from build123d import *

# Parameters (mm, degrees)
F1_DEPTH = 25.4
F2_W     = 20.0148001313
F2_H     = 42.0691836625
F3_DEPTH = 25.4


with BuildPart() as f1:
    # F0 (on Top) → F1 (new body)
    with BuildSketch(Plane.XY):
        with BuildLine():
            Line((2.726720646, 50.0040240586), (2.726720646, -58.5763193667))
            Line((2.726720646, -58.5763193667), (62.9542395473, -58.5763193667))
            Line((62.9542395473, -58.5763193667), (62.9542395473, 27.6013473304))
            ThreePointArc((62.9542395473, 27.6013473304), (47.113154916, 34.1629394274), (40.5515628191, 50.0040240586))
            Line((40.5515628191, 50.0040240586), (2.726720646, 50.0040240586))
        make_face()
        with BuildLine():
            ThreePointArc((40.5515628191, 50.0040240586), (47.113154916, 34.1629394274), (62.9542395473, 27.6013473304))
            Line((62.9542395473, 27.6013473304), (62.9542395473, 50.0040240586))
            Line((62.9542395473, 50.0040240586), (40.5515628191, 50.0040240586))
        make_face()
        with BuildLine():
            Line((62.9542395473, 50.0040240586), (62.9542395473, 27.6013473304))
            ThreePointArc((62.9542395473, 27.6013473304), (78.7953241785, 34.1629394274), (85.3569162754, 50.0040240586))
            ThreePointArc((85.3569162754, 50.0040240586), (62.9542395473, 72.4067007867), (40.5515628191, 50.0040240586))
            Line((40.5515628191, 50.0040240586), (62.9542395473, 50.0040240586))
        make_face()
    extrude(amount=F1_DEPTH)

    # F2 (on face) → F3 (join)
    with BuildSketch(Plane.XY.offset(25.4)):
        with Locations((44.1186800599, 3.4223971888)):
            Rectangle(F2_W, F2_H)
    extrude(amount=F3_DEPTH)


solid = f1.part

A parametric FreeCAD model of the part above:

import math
import FreeCAD as App
import Part
import Sketcher

V = App.Vector
Q = App.Units.Quantity


def add_polygon(sketch, points):
    """Adds a closed chain of lines whose ends are joined by coincident constraints."""
    first, n = sketch.GeometryCount, len(points)
    for a, b in zip(points, points[1:] + points[:1]):
        sketch.addGeometry(Part.LineSegment(App.Vector(*a, 0), App.Vector(*b, 0)), False)
    for i in range(n):
        sketch.addConstraint(Sketcher.Constraint("Coincident", first + i, 2, first + (i + 1) % n, 1))

doc = App.newDocument("Part")
body = doc.addObject("PartDesign::Body", "Body")

# Sketch on XY plane
sketch1 = body.newObject("Sketcher::SketchObject", "Sketch")
sketch1.AttachmentSupport = (doc.getObject("XY_Plane"), [""])
sketch1.MapMode = "FlatFace"
sketch1.addGeometry([
    Part.LineSegment(V(3, 50, 0), V(3, -59, 0)),  # 0
    Part.LineSegment(V(3, -59, 0), V(63, -59, 0)),  # 1
    Part.LineSegment(V(63, -59, 0), V(63, 28, 0)),  # 2
    Part.ArcOfCircle(Part.Circle(V(63, 50, 0), V(0, 0, 1), 22), math.radians(-90), math.radians(180)),  # 3
    Part.LineSegment(V(41, 50, 0), V(3, 50, 0)),  # 4
], False)
sketch1.addConstraint([
    Sketcher.Constraint("Coincident", 0, 2, 1, 1),
    Sketcher.Constraint("Coincident", 1, 2, 2, 1),
    Sketcher.Constraint("Coincident", 2, 2, 3, 1),
    Sketcher.Constraint("Coincident", 3, 2, 4, 1),
    Sketcher.Constraint("Coincident", 4, 2, 0, 1),
    Sketcher.Constraint("Vertical", 0),
    Sketcher.Constraint("Horizontal", 1),
    Sketcher.Constraint("Vertical", 2),
    Sketcher.Constraint("Horizontal", 4),
    Sketcher.Constraint("Vertical", 3, 3, 1, 2),
    Sketcher.Constraint("Radius", 3, 22.402677),
    Sketcher.Constraint("DistanceX", 1, 1, 1, 2, 60.227519),
    Sketcher.Constraint("DistanceY", 0, 2, 0, 1, 108.580343),
    Sketcher.Constraint("DistanceY", 2, 1, 2, 2, 86.177667),
    Sketcher.Constraint("DistanceX", -1, 1, 3, 3, 62.95424),
    Sketcher.Constraint("DistanceY", 0, 2, -1, 1, 58.576319),
])
pad1 = body.newObject("PartDesign::Pad", "Pad")
pad1.Profile = sketch1
pad1.Length = Q("1 in")

# Sketch on XY plane
sketch2 = body.newObject("Sketcher::SketchObject", "Sketch001")
sketch2.AttachmentSupport = (doc.getObject("XY_Plane"), [""])
sketch2.MapMode = "FlatFace"
sketch2.AttachmentOffset = App.Placement(V(0, 0, 1 * 25.4), App.Rotation())
add_polygon(sketch2, [(34, 24), (34, -18), (54, -18), (54, 24)])  # lines 0-3
sketch2.addConstraint([
    Sketcher.Constraint("Vertical", 0),
    Sketcher.Constraint("Horizontal", 1),
    Sketcher.Constraint("Vertical", 2),
    Sketcher.Constraint("Horizontal", 3),
    Sketcher.Constraint("DistanceX", 1, 1, 1, 2, 20.0148),
    Sketcher.Constraint("DistanceY", 0, 2, 0, 1, 42.069184),
    Sketcher.Constraint("DistanceX", -1, 1, 0, 2, 34.11128),
    Sketcher.Constraint("DistanceY", -1, 1, 2, 2, 24.456989),
])
pad2 = body.newObject("PartDesign::Pad", "Pad001")
pad2.Profile = sketch2
pad2.Length = Q("1 in")

doc.recompute()
